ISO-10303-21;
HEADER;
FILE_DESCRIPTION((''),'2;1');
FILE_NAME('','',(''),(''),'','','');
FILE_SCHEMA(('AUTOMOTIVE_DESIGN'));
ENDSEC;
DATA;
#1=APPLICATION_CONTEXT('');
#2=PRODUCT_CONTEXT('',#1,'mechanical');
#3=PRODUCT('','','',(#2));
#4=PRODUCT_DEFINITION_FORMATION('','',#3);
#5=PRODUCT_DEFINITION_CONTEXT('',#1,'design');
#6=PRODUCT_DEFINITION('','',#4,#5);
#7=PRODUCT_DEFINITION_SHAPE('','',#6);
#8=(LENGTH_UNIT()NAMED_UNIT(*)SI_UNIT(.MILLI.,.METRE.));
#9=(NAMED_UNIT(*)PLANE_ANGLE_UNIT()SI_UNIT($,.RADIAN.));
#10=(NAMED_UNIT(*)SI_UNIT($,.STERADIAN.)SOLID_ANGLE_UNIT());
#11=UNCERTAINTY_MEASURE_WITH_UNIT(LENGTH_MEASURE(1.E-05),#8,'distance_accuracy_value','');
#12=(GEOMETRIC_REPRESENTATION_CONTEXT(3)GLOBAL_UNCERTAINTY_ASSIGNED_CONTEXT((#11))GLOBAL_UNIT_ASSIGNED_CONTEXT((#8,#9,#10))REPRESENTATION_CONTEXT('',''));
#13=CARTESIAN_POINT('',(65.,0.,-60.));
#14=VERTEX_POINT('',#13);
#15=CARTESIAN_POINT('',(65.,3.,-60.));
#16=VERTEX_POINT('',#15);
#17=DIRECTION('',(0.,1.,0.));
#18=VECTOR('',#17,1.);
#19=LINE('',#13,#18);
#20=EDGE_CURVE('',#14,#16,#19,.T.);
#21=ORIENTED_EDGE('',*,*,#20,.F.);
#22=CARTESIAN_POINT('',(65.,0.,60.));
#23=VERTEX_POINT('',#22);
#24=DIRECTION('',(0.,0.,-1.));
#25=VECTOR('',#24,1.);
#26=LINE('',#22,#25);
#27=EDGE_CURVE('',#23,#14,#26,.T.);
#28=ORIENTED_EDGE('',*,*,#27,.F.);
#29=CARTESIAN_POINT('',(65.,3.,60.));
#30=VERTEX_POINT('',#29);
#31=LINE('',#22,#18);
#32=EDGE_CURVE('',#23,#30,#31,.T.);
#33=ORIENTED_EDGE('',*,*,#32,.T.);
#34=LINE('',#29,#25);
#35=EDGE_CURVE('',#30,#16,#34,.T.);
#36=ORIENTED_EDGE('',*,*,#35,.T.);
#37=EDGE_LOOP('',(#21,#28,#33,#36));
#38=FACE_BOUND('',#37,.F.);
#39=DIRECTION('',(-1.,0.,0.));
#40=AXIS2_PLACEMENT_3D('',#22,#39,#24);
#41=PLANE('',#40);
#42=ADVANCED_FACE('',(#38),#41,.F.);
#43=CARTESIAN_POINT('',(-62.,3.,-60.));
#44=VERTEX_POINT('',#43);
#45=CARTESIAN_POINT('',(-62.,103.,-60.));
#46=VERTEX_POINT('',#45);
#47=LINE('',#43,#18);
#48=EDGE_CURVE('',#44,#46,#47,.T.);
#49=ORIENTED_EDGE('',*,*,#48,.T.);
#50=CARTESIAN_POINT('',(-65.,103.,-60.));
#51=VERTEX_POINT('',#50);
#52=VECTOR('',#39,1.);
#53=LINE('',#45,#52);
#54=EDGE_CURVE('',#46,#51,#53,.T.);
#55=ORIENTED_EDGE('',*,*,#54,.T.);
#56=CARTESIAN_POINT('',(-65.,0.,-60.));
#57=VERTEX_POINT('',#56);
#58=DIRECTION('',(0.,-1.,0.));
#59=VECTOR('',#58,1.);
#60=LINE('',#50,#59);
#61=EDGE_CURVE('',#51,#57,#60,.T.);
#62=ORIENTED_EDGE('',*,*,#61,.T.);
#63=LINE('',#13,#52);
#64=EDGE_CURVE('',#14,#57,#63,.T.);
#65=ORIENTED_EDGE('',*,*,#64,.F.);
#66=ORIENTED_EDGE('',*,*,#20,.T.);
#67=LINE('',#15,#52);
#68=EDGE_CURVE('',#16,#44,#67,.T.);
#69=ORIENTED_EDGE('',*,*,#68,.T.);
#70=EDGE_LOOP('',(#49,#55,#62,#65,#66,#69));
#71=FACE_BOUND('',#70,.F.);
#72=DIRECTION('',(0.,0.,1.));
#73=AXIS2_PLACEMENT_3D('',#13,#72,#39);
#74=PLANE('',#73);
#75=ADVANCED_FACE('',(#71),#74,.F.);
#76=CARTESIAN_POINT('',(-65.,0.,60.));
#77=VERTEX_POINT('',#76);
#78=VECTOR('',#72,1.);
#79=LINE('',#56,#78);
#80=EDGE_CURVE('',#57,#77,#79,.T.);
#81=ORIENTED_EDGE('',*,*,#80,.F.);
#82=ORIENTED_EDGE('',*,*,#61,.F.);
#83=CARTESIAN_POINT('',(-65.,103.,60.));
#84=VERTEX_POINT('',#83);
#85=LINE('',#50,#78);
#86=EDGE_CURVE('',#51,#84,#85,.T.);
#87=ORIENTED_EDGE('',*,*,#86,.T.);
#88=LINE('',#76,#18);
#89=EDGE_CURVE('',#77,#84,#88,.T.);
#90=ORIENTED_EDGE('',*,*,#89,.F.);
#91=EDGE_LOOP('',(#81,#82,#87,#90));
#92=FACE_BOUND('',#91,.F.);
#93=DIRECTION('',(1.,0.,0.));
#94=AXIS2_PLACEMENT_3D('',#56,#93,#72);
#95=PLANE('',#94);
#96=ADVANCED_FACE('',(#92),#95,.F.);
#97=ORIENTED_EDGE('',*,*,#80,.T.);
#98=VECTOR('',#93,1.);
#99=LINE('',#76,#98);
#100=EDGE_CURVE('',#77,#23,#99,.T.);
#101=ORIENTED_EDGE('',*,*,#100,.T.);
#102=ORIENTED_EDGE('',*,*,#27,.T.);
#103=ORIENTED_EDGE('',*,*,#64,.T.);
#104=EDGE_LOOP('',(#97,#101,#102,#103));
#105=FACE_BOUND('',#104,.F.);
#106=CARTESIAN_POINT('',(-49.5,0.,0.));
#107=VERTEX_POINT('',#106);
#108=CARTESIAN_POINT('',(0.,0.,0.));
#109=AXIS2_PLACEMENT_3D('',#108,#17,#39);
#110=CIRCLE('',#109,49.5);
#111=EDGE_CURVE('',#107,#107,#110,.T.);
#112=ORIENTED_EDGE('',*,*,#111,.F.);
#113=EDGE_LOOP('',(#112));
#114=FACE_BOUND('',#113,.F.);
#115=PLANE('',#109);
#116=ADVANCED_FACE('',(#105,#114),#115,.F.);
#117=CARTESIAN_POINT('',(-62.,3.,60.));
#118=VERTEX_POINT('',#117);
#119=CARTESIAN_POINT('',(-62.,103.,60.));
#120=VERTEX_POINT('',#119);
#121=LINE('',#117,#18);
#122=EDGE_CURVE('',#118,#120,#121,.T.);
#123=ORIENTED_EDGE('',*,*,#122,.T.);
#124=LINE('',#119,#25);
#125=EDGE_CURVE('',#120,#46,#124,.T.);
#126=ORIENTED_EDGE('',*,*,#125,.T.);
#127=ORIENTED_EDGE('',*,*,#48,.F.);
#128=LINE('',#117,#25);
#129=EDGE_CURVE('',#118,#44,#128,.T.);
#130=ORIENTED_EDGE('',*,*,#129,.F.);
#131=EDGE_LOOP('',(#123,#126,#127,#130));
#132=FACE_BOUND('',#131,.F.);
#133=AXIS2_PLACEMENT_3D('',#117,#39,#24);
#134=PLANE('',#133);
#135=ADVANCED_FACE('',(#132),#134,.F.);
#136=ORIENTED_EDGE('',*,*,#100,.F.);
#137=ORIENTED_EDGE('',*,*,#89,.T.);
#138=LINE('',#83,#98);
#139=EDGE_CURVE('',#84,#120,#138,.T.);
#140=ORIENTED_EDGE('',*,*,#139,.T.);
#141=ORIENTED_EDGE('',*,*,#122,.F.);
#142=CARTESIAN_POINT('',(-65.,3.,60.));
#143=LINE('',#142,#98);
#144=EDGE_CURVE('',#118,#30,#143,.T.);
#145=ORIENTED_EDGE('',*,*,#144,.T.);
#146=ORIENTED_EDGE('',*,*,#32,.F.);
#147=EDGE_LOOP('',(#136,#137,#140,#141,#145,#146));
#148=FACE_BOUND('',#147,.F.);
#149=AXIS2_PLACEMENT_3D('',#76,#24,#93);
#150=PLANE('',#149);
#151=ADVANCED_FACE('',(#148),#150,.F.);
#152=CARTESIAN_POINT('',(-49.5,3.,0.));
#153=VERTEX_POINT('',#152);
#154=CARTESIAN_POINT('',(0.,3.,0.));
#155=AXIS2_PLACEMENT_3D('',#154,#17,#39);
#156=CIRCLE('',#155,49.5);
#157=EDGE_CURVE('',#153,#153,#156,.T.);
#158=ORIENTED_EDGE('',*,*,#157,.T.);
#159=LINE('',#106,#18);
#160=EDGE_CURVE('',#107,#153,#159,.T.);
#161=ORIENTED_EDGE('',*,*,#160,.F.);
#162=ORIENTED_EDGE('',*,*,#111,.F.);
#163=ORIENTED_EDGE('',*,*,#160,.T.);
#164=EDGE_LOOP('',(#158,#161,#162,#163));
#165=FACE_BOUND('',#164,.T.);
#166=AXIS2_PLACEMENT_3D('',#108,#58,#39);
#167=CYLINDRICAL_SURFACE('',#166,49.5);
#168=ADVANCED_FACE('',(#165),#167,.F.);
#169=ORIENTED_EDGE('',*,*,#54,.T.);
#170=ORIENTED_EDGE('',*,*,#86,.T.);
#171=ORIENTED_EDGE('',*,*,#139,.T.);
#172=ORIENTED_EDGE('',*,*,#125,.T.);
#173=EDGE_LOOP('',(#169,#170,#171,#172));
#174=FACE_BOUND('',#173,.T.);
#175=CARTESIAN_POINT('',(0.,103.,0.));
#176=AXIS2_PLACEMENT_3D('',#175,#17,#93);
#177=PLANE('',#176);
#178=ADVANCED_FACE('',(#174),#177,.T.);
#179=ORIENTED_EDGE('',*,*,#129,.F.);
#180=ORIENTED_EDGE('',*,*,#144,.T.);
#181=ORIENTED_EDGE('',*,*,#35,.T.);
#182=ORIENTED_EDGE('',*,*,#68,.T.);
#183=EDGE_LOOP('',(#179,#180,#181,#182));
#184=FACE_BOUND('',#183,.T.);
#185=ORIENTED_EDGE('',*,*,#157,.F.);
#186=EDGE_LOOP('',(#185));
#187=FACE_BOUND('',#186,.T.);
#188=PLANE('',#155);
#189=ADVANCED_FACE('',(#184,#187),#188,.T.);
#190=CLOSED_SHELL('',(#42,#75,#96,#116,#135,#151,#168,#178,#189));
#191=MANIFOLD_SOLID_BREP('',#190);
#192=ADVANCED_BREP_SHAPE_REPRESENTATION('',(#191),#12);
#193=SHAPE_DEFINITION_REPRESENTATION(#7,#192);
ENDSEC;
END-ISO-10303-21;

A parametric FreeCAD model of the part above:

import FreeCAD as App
import Part
import Sketcher

doc = App.newDocument("Part")
body = doc.addObject("PartDesign::Body", "Body")

# Sketch on XZ plane
sketch1 = body.newObject("Sketcher::SketchObject", "Sketch")
sketch1.AttachmentSupport = (doc.getObject("XZ_Plane"), [""])
sketch1.MapMode = "FlatFace"
sketch1.addGeometry([
    Part.LineSegment(App.Vector(-65, -60, 0), App.Vector(-65, 60, 0)),  # 0
    Part.LineSegment(App.Vector(-65, 60, 0), App.Vector(65, 60, 0)),  # 1
    Part.LineSegment(App.Vector(65, 60, 0), App.Vector(65, -60, 0)),  # 2
    Part.LineSegment(App.Vector(65, -60, 0), App.Vector(-65, -60, 0)),  # 3
    Part.Circle(App.Vector(0, 0, 0), App.Vector(0, 0, 1), 50),  # 4
], False)
sketch1.addConstraint([
    Sketcher.Constraint("Coincident", 0, 2, 1, 1),
    Sketcher.Constraint("Coincident", 1, 2, 2, 1),
    Sketcher.Constraint("Coincident", 2, 2, 3, 1),
    Sketcher.Constraint("Coincident", 3, 2, 0, 1),
    Sketcher.Constraint("Vertical", 0),
    Sketcher.Constraint("Horizontal", 1),
    Sketcher.Constraint("Vertical", 2),
    Sketcher.Constraint("Horizontal", 3),
    Sketcher.Constraint("Coincident", 4, 3, -1, 1),
    Sketcher.Constraint("Symmetric", 0, 2, 2, 2, -1, 1),
    Sketcher.Constraint("Diameter", 4, 99.0),
    Sketcher.Constraint("DistanceX", 1, 1, 1, 2, 130.0),
    Sketcher.Constraint("DistanceY", 0, 1, 0, 2, 120.0),
])
pad1 = body.newObject("PartDesign::Pad", "Pad")
pad1.Profile = sketch1
pad1.Length = 3
pad1.Reversed = True

# Sketch on XZ plane
sketch2 = body.newObject("Sketcher::SketchObject", "Sketch001")
sketch2.AttachmentSupport = (doc.getObject("XZ_Plane"), [""])
sketch2.MapMode = "FlatFace"
sketch2.AttachmentOffset = App.Placement(App.Vector(0, 0, -3), App.Rotation())
sketch2.addGeometry([
    Part.LineSegment(App.Vector(-65, -60, 0), App.Vector(-65, 60, 0)),
    Part.LineSegment(App.Vector(-65, 60, 0), App.Vector(-62, 60, 0)),
    Part.LineSegment(App.Vector(-62, 60, 0), App.Vector(-62, -60, 0)),
    Part.LineSegment(App.Vector(-62, -60, 0), App.Vector(-65, -60, 0)),
], False)
sketch2.addConstraint([
    Sketcher.Constraint("Coincident", 0, 2, 1, 1),
    Sketcher.Constraint("Coincident", 1, 2, 2, 1),
    Sketcher.Constraint("Coincident", 2, 2, 3, 1),
    Sketcher.Constraint("Coincident", 3, 2, 0, 1),
    Sketcher.Constraint("Vertical", 0),
    Sketcher.Constraint("Horizontal", 1),
    Sketcher.Constraint("Vertical", 2),
    Sketcher.Constraint("Horizontal", 3),
    Sketcher.Constraint("DistanceX", 1, 1, 1, 2, 3.0),
    Sketcher.Constraint("DistanceY", 0, 1, 0, 2, 120.0),
    Sketcher.Constraint("DistanceX", 0, 2, -1, 1, 65.0),
    Sketcher.Constraint("DistanceY", -1, 1, 0, 2, 60.0),
])
pad2 = body.newObject("PartDesign::Pad", "Pad001")
pad2.Profile = sketch2
pad2.Length = 100
pad2.Reversed = True

doc.recompute()
